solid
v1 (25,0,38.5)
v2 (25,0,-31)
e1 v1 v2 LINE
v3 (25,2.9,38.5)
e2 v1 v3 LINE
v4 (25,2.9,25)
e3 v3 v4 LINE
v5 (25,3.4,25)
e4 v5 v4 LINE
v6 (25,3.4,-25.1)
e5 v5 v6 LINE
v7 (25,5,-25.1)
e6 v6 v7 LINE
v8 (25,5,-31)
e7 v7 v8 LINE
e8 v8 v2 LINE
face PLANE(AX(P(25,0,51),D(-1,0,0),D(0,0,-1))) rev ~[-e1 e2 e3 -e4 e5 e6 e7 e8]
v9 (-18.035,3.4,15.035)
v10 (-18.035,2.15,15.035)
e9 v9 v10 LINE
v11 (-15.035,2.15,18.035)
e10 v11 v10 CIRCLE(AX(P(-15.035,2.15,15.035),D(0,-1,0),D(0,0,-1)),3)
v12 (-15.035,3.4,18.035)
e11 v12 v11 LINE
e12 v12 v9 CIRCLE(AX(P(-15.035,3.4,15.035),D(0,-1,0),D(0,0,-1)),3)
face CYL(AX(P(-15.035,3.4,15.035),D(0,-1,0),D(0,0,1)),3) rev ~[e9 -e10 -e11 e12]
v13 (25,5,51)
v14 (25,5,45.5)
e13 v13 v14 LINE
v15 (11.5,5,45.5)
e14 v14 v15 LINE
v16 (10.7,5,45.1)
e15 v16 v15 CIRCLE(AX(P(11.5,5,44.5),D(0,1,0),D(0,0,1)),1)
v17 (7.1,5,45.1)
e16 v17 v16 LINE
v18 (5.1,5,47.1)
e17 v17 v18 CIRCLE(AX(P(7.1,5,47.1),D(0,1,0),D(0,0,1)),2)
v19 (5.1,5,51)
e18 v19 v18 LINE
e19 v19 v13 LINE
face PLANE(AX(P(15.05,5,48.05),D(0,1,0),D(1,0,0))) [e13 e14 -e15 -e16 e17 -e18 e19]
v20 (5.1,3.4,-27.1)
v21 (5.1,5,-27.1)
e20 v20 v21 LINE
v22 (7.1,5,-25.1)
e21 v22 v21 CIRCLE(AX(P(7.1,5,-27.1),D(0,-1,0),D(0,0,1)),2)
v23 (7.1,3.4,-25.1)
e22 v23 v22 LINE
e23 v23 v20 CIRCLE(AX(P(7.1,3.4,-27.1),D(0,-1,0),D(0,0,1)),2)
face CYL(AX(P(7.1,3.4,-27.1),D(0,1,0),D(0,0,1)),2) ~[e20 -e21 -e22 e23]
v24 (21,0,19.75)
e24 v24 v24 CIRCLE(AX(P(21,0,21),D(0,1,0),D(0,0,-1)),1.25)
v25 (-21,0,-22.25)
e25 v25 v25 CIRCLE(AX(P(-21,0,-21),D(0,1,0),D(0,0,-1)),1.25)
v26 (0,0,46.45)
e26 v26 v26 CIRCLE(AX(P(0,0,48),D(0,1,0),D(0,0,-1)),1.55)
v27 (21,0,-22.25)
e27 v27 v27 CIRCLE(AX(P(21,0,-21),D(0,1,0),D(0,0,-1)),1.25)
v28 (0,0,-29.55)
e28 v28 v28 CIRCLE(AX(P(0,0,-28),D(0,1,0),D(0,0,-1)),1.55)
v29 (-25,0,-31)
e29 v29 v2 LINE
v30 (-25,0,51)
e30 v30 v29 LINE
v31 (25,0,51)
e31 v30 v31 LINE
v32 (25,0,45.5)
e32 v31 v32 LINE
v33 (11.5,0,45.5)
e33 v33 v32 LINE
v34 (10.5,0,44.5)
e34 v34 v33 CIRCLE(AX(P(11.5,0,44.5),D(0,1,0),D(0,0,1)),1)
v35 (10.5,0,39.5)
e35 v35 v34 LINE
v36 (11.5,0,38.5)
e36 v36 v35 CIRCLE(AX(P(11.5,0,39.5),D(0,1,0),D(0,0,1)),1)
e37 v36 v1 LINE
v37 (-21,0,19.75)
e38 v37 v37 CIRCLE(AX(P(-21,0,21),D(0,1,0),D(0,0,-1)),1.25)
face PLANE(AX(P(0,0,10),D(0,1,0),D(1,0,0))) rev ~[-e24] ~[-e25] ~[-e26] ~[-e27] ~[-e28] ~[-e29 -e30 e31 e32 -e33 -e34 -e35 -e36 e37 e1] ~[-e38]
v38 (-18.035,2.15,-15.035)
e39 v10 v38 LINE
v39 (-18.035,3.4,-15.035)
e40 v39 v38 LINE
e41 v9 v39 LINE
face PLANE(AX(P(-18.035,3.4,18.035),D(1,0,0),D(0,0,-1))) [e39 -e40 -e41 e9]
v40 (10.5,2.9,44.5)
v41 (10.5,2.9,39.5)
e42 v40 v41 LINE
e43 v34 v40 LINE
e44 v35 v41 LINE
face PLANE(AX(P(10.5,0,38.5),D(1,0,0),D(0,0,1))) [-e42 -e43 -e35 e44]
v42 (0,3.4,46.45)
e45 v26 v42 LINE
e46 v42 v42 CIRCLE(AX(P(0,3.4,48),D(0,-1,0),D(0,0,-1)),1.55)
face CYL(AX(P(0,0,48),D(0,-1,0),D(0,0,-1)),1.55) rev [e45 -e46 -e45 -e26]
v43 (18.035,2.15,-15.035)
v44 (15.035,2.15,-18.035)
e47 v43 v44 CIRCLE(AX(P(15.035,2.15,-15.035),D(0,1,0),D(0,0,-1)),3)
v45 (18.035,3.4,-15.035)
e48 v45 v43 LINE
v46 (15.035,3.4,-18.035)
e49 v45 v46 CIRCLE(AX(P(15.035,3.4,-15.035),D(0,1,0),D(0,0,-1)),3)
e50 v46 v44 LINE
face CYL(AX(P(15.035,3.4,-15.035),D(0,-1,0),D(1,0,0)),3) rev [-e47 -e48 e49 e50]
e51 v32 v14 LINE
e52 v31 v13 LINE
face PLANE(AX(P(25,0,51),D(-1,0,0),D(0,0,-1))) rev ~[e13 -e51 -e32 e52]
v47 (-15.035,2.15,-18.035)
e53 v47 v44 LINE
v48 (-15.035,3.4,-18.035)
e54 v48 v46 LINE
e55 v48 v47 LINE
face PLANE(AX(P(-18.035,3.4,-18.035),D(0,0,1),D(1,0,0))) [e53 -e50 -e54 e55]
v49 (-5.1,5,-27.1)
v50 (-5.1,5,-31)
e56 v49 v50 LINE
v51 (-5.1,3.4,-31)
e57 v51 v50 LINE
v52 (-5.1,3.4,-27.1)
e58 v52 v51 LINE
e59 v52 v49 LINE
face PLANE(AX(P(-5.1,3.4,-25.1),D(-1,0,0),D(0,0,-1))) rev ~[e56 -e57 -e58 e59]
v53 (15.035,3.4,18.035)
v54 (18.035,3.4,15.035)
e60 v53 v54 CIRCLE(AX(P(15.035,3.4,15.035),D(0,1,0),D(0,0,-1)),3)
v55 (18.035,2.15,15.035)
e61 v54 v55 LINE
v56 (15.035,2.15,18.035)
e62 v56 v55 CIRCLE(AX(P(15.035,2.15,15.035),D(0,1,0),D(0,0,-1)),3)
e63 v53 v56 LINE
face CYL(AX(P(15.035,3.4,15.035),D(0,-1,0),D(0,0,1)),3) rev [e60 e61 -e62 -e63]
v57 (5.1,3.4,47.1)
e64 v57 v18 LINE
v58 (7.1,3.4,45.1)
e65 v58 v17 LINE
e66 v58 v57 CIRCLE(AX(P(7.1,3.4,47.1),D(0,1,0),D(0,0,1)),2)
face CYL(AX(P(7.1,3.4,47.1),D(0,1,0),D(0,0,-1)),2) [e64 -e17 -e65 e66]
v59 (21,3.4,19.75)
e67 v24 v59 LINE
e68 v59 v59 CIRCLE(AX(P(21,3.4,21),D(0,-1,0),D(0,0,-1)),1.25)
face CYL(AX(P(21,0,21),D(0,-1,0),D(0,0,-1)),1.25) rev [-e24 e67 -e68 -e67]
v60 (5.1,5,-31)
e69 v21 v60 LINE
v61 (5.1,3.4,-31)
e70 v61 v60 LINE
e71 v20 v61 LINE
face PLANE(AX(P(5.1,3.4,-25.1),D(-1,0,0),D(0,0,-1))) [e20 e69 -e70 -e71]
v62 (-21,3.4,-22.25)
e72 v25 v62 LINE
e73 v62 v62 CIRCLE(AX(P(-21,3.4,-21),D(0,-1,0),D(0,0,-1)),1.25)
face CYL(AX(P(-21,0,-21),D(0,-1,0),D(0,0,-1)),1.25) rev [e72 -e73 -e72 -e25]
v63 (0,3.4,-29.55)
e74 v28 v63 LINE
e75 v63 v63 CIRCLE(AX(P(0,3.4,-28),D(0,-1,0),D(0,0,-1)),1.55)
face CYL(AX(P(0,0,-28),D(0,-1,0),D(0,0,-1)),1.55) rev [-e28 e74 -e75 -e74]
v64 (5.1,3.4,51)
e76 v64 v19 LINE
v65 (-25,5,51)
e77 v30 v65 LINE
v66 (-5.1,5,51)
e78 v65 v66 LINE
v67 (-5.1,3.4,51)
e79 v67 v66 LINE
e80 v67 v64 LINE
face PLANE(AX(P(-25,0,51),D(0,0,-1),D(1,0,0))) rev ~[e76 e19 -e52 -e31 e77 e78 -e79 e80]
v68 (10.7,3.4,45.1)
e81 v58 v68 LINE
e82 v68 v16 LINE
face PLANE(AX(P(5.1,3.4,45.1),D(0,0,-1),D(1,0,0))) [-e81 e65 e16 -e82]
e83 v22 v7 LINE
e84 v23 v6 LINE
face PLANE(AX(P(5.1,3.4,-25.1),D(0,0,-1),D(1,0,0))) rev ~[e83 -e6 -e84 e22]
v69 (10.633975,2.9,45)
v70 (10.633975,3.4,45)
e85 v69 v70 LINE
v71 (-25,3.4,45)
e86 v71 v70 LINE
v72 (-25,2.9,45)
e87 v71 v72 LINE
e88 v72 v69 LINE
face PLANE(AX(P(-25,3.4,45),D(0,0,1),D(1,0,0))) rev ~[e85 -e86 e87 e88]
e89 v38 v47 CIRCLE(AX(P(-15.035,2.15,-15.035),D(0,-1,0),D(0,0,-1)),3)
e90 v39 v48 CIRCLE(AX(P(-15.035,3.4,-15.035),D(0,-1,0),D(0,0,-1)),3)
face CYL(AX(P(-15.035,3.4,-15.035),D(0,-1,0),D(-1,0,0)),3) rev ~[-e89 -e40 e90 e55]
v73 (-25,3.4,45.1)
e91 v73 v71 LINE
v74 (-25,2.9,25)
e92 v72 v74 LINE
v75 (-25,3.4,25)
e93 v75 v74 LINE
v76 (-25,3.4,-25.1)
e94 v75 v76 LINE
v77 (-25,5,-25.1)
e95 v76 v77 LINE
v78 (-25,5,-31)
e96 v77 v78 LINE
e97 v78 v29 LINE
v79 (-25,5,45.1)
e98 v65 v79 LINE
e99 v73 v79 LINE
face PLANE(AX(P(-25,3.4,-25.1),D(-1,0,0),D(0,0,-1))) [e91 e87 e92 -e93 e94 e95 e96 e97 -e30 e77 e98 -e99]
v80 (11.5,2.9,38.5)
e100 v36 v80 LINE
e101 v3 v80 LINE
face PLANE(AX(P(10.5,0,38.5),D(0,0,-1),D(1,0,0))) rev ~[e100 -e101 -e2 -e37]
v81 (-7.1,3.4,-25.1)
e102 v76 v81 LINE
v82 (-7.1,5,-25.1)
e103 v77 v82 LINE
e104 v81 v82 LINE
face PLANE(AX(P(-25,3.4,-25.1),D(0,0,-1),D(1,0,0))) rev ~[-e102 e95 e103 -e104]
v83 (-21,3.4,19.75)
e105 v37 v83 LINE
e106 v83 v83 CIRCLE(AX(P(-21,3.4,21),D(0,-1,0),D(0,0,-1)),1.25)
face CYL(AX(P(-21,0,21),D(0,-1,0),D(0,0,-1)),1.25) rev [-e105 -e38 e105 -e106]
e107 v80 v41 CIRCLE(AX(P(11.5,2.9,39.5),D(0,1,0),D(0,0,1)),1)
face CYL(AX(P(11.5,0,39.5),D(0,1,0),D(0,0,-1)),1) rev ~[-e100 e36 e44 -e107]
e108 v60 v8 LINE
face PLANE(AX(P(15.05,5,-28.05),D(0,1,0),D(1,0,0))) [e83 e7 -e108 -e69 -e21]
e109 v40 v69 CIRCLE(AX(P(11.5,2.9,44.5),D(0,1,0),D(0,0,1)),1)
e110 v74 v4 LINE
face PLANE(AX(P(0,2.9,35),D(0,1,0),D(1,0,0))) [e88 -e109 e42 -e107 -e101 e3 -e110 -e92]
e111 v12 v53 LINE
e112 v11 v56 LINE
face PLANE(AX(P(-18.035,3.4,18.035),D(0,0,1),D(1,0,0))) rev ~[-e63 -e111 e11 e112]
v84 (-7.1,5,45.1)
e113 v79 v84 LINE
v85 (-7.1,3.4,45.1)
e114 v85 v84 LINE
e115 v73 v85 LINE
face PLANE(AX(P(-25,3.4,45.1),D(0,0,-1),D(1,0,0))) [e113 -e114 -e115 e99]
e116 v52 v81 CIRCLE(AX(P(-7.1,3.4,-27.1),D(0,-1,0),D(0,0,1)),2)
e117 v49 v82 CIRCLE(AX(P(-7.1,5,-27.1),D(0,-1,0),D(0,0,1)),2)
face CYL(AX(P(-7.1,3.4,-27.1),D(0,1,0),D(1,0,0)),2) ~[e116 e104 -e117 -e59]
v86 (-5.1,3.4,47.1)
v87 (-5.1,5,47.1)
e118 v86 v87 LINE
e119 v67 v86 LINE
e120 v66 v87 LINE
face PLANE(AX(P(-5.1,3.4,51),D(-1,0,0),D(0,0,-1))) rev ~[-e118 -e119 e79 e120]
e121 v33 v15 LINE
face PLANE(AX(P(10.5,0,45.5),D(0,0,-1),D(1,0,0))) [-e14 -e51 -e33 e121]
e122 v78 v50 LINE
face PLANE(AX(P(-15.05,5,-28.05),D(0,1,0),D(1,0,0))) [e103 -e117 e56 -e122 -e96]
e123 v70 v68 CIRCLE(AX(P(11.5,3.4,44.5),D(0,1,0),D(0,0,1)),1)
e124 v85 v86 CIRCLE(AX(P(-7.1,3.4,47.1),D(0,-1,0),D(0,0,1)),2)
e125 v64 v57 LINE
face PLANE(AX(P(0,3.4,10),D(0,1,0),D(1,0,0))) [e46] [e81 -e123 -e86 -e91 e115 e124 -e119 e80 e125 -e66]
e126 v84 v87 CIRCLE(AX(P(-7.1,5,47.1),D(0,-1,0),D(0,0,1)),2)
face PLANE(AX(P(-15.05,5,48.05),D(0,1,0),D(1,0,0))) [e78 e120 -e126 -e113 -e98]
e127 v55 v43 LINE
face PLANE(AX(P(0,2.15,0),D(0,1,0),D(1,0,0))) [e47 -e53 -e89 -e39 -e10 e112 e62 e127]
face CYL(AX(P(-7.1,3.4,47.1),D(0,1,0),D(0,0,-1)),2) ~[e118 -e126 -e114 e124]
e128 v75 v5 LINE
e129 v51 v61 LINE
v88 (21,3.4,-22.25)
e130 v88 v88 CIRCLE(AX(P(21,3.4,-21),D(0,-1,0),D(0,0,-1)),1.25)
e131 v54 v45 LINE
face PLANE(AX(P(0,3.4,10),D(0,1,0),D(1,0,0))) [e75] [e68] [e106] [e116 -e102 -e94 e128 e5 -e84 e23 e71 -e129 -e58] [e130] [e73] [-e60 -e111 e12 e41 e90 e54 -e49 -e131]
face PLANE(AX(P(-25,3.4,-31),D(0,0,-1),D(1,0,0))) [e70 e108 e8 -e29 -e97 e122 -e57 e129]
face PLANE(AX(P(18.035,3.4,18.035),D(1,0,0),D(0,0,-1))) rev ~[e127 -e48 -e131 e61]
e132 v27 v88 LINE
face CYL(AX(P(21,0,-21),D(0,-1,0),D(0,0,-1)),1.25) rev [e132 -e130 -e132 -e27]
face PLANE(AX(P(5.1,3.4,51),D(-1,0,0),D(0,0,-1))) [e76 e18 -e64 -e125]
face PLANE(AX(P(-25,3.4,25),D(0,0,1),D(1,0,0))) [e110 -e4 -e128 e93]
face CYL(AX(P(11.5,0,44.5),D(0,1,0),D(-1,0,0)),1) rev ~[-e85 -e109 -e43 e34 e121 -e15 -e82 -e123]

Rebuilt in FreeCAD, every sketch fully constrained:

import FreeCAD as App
import Part
import Sketcher
from FreeCAD import Vector
Q = App.Units.Quantity


def edges_at(feature, points):
    """Names of the edges that pass closest to the given points."""
    edges = feature.Shape.Edges
    near = lambda p: min(range(len(edges)), key=lambda i: edges[i].distToShape(Part.Vertex(*p))[0])
    return sorted({f"Edge{near(p) + 1}" for p in points})

doc = App.newDocument("Part")
body = doc.addObject("PartDesign::Body", "Body")

sketch1 = doc.addObject("Sketcher::SketchObject", "Sketch")
body.addObject(sketch1)
sketch1.AttachmentSupport = (doc.XZ_Plane, [""])
sketch1.MapMode = "FlatFace"
sketch1.addGeometry([
    Part.LineSegment(Vector(-25, -31, 0), Vector(-25, 51, 0)),
    Part.LineSegment(Vector(-25, 51, 0), Vector(25, 51, 0)),
    Part.LineSegment(Vector(25, 51, 0), Vector(25, -31, 0)),
    Part.LineSegment(Vector(25, -31, 0), Vector(-25, -31, 0)),
], False)
sketch1.addConstraint([
    Sketcher.Constraint("Coincident", 0, 2, 1, 1),
    Sketcher.Constraint("Coincident", 1, 2, 2, 1),
    Sketcher.Constraint("Coincident", 2, 2, 3, 1),
    Sketcher.Constraint("Coincident", 3, 2, 0, 1),
    Sketcher.Constraint("Vertical", 0),
    Sketcher.Constraint("Horizontal", 1),
    Sketcher.Constraint("Vertical", 2),
    Sketcher.Constraint("Horizontal", 3),
    Sketcher.Constraint("DistanceX", 1, 1, 1, 2, Q("50 mm")),
    Sketcher.Constraint("DistanceY", 0, 1, 0, 2, Q("82 mm")),
    Sketcher.Constraint("DistanceX", 0, 2, -1, 1, Q("25 mm")),
    Sketcher.Constraint("DistanceY", -1, 1, 0, 2, Q("51 mm")),
])
pad1 = doc.addObject("PartDesign::Pad", "Pad")
body.addObject(pad1)
pad1.Profile = sketch1
pad1.Length = 3.4
pad1.Reversed = True

sketch2 = doc.addObject("Sketcher::SketchObject", "Sketch001")
body.addObject(sketch2)
sketch2.AttachmentSupport = (doc.XZ_Plane, [""])
sketch2.MapMode = "FlatFace"
sketch2.AttachmentOffset = App.Placement(Vector(0, 0, -3.4), App.Rotation())
sketch2.addGeometry([
    Part.LineSegment(Vector(-18, -18, 0), Vector(-18, 18, 0)),
    Part.LineSegment(Vector(-18, 18, 0), Vector(18, 18, 0)),
    Part.LineSegment(Vector(18, 18, 0), Vector(18, -18, 0)),
    Part.LineSegment(Vector(18, -18, 0), Vector(-18, -18, 0)),
], False)
sketch2.addConstraint([
    Sketcher.Constraint("Coincident", 0, 2, 1, 1),
    Sketcher.Constraint("Coincident", 1, 2, 2, 1),
    Sketcher.Constraint("Coincident", 2, 2, 3, 1),
    Sketcher.Constraint("Coincident", 3, 2, 0, 1),
    Sketcher.Constraint("Vertical", 0),
    Sketcher.Constraint("Horizontal", 1),
    Sketcher.Constraint("Vertical", 2),
    Sketcher.Constraint("Horizontal", 3),
    Sketcher.Constraint("Symmetric", 0, 2, 2, 2, -1, 1),
    Sketcher.Constraint("Equal", 3, 0),
    Sketcher.Constraint("DistanceX", 1, 1, 1, 2, Q("36.07 mm")),
])
pocket1 = doc.addObject("PartDesign::Pocket", "Pocket")
body.addObject(pocket1)
pocket1.Profile = sketch2
pocket1.Length = 1.25
pocket1.Reversed = True

sketch3 = doc.addObject("Sketcher::SketchObject", "Sketch002")
body.addObject(sketch3)
sketch3.AttachmentSupport = (doc.XZ_Plane, [""])
sketch3.MapMode = "FlatFace"
sketch3.addGeometry([
    Part.Circle(Vector(-21, -21, 0), Vector(0, 0, 1), 1.2),
    Part.Circle(Vector(21, -21, 0), Vector(0, 0, 1), 1.2),
    Part.Circle(Vector(-21, 21, 0), Vector(0, 0, 1), 1.2),
    Part.Circle(Vector(21, 21, 0), Vector(0, 0, 1), 1.2),
    Part.Circle(Vector(0, -28, 0), Vector(0, 0, 1), 1.6),
    Part.Circle(Vector(0, 48, 0), Vector(0, 0, 1), 1.6),
], False)
sketch3.addConstraint([
    Sketcher.Constraint("Equal", 0, 1),
    Sketcher.Constraint("Equal", 1, 2),
    Sketcher.Constraint("Equal", 2, 3),
    Sketcher.Constraint("Equal", 4, 5),
    Sketcher.Constraint("Symmetric", 1, 3, 2, 3, -1, 1),
    Sketcher.Constraint("Symmetric", 0, 3, 3, 3, -1, 1),
    Sketcher.Constraint("Symmetric", 0, 3, 1, 3, -2),
    Sketcher.Constraint("PointOnObject", 4, 3, -2),
    Sketcher.Constraint("PointOnObject", 5, 3, -2),
    Sketcher.Constraint("Diameter", 0, Q("2.5 mm")),
    Sketcher.Constraint("Diameter", 4, Q("3.1 mm")),
    Sketcher.Constraint("DistanceX", 0, 3, -1, 1, Q("21 mm")),
    Sketcher.Constraint("DistanceY", 0, 3, -1, 1, Q("21 mm")),
    Sketcher.Constraint("DistanceY", 4, 3, -1, 1, Q("28 mm")),
    Sketcher.Constraint("DistanceY", -1, 1, 5, 3, Q("48 mm")),
])
pocket2 = doc.addObject("PartDesign::Pocket", "Pocket001")
body.addObject(pocket2)
pocket2.Profile = sketch3
pocket2.Type = "ThroughAll"

sketch4 = doc.addObject("Sketcher::SketchObject", "Sketch003")
body.addObject(sketch4)
sketch4.AttachmentSupport = (doc.XZ_Plane, [""])
sketch4.MapMode = "FlatFace"
sketch4.AttachmentOffset = App.Placement(Vector(0, 0, -3.4), App.Rotation())
sketch4.addGeometry([
    Part.LineSegment(Vector(-25, 25, 0), Vector(-25, 45, 0)),
    Part.LineSegment(Vector(-25, 45, 0), Vector(25, 45, 0)),
    Part.LineSegment(Vector(25, 45, 0), Vector(25, 25, 0)),
    Part.LineSegment(Vector(25, 25, 0), Vector(-25, 25, 0)),
], False)
sketch4.addConstraint([
    Sketcher.Constraint("Coincident", 0, 2, 1, 1),
    Sketcher.Constraint("Coincident", 1, 2, 2, 1),
    Sketcher.Constraint("Coincident", 2, 2, 3, 1),
    Sketcher.Constraint("Coincident", 3, 2, 0, 1),
    Sketcher.Constraint("Vertical", 0),
    Sketcher.Constraint("Horizontal", 1),
    Sketcher.Constraint("Vertical", 2),
    Sketcher.Constraint("Horizontal", 3),
    Sketcher.Constraint("DistanceX", 1, 1, 1, 2, Q("50 mm")),
    Sketcher.Constraint("DistanceY", 0, 1, 0, 2, Q("20 mm")),
    Sketcher.Constraint("DistanceX", 0, 2, -1, 1, Q("25 mm")),
    Sketcher.Constraint("DistanceY", -1, 1, 0, 2, Q("45 mm")),
])
pocket3 = doc.addObject("PartDesign::Pocket", "Pocket002")
body.addObject(pocket3)
pocket3.Profile = sketch4
pocket3.Length = 0.5
pocket3.Reversed = True
doc.recompute()

fillet = doc.addObject("PartDesign::Fillet", "Fillet")
body.addObject(fillet)
fillet.Base = (pocket3, edges_at(pocket3, [
    (18.035, 2.775, -18.035),
    (18.035, 2.775, 18.035),
    (-18.035, 2.775, 18.035),
    (-18.035, 2.775, -18.035),
]))
fillet.Radius = 3

sketch5 = doc.addObject("Sketcher::SketchObject", "Sketch004")
body.addObject(sketch5)
sketch5.AttachmentSupport = (doc.XZ_Plane, [""])
sketch5.MapMode = "FlatFace"
sketch5.AttachmentOffset = App.Placement(Vector(0, 0, -3.4), App.Rotation())
sketch5.addGeometry([
    Part.LineSegment(Vector(-25, -31, 0), Vector(-25, -25, 0)),
    Part.LineSegment(Vector(-25, -25, 0), Vector(-5, -25, 0)),
    Part.LineSegment(Vector(-5, -25, 0), Vector(-5, -31, 0)),
    Part.LineSegment(Vector(-5, -31, 0), Vector(-25, -31, 0)),
    Part.LineSegment(Vector(5, -31, 0), Vector(5, -25, 0)),
    Part.LineSegment(Vector(5, -25, 0), Vector(25, -25, 0)),
    Part.LineSegment(Vector(25, -25, 0), Vector(25, -31, 0)),
    Part.LineSegment(Vector(25, -31, 0), Vector(5, -31, 0)),
    Part.LineSegment(Vector(-25, 45, 0), Vector(-25, 51, 0)),
    Part.LineSegment(Vector(-25, 51, 0), Vector(-5, 51, 0)),
    Part.LineSegment(Vector(-5, 51, 0), Vector(-5, 45, 0)),
    Part.LineSegment(Vector(-5, 45, 0), Vector(-25, 45, 0)),
    Part.LineSegment(Vector(5, 45, 0), Vector(5, 51, 0)),
    Part.LineSegment(Vector(5, 51, 0), Vector(25, 51, 0)),
    Part.LineSegment(Vector(25, 51, 0), Vector(25, 45, 0)),
    Part.LineSegment(Vector(25, 45, 0), Vector(5, 45, 0)),
], False)
sketch5.addConstraint([
    Sketcher.Constraint("Coincident", 0, 2, 1, 1),
    Sketcher.Constraint("Coincident", 1, 2, 2, 1),
    Sketcher.Constraint("Coincident", 2, 2, 3, 1),
    Sketcher.Constraint("Coincident", 3, 2, 0, 1),
    Sketcher.Constraint("Coincident", 4, 2, 5, 1),
    Sketcher.Constraint("Coincident", 5, 2, 6, 1),
    Sketcher.Constraint("Coincident", 6, 2, 7, 1),
    Sketcher.Constraint("Coincident", 7, 2, 4, 1),
    Sketcher.Constraint("Coincident", 8, 2, 9, 1),
    Sketcher.Constraint("Coincident", 9, 2, 10, 1),
    Sketcher.Constraint("Coincident", 10, 2, 11, 1),
    Sketcher.Constraint("Coincident", 11, 2, 8, 1),
    Sketcher.Constraint("Coincident", 12, 2, 13, 1),
    Sketcher.Constraint("Coincident", 13, 2, 14, 1),
    Sketcher.Constraint("Coincident", 14, 2, 15, 1),
    Sketcher.Constraint("Coincident", 15, 2, 12, 1),
    Sketcher.Constraint("Vertical", 0),
    Sketcher.Constraint("Horizontal", 1),
    Sketcher.Constraint("Vertical", 2),
    Sketcher.Constraint("Horizontal", 3),
    Sketcher.Constraint("Vertical", 4),
    Sketcher.Constraint("Horizontal", 5),
    Sketcher.Constraint("Vertical", 6),
    Sketcher.Constraint("Horizontal", 7),
    Sketcher.Constraint("Vertical", 8),
    Sketcher.Constraint("Horizontal", 9),
    Sketcher.Constraint("Vertical", 10),
    Sketcher.Constraint("Horizontal", 11),
    Sketcher.Constraint("Vertical", 12),
    Sketcher.Constraint("Horizontal", 13),
    Sketcher.Constraint("Vertical", 14),
    Sketcher.Constraint("Horizontal", 15),
    Sketcher.Constraint("Symmetric", 1, 2, 4, 2, -2),
    Sketcher.Constraint("Symmetric", 3, 2, 6, 2, -2),
    Sketcher.Constraint("Symmetric", 9, 2, 12, 2, -2),
    Sketcher.Constraint("Symmetric", 11, 2, 14, 2, -2),
    Sketcher.Constraint("Vertical", 3, 2, 8, 2),
    Sketcher.Constraint("Vertical", 2, 2, 9, 2),
    Sketcher.Constraint("Equal", 6, 8),
    Sketcher.Constraint("DistanceX", 1, 1, 1, 2, Q("19.9 mm")),
    Sketcher.Constraint("DistanceY", 0, 1, 0, 2, Q("5.9 mm")),
    Sketcher.Constraint("DistanceX", 0, 2, -1, 1, Q("25 mm")),
    Sketcher.Constraint("DistanceY", 2, 2, -1, 1, Q("31 mm")),
    Sketcher.Constraint("DistanceY", -1, 1, 8, 2, Q("51 mm")),
])
pad2 = doc.addObject("PartDesign::Pad", "Pad001")
body.addObject(pad2)
pad2.Profile = sketch5
pad2.Length = 1.6
pad2.Reversed = True

sketch6 = doc.addObject("Sketcher::SketchObject", "Sketch005")
body.addObject(sketch6)
sketch6.AttachmentSupport = (doc.XZ_Plane, [""])
sketch6.MapMode = "FlatFace"
sketch6.addGeometry([
    Part.LineSegment(Vector(10, 46, 0), Vector(10, 38, 0)),
    Part.LineSegment(Vector(10, 38, 0), Vector(25, 38, 0)),
    Part.LineSegment(Vector(25, 38, 0), Vector(25, 46, 0)),
    Part.LineSegment(Vector(25, 46, 0), Vector(10, 46, 0)),
], False)
sketch6.addConstraint([
    Sketcher.Constraint("Coincident", 0, 2, 1, 1),
    Sketcher.Constraint("Coincident", 1, 2, 2, 1),
    Sketcher.Constraint("Coincident", 2, 2, 3, 1),
    Sketcher.Constraint("Coincident", 3, 2, 0, 1),
    Sketcher.Constraint("Vertical", 0),
    Sketcher.Constraint("Horizontal", 1),
    Sketcher.Constraint("Vertical", 2),
    Sketcher.Constraint("Horizontal", 3),
    Sketcher.Constraint("DistanceY", 0, 2, 0, 1, Q("7 mm")),
    Sketcher.Constraint("DistanceX", 1, 1, 1, 2, Q("14.5 mm")),
    Sketcher.Constraint("DistanceX", -1, 1, 1, 2, Q("25 mm")),
    Sketcher.Constraint("DistanceY", -1, 1, 0, 2, Q("38.5 mm")),
])
pocket4 = doc.addObject("PartDesign::Pocket", "Pocket003")
body.addObject(pocket4)
pocket4.Profile = sketch6
pocket4.Type = "ThroughAll"
doc.recompute()

fillet2 = doc.addObject("PartDesign::Fillet", "Fillet001")
body.addObject(fillet2)
fillet2.Base = (pocket4, edges_at(pocket4, [(10.5, 1.45, 38.5), (10.5, 2.5, 45.5)]))
fillet2.Radius = 1
doc.recompute()

fillet3 = doc.addObject("PartDesign::Fillet", "Fillet002")
body.addObject(fillet3)
fillet3.Base = (fillet2, edges_at(fillet2, [
    (5.1, 4.2, -25.1),
    (-5.1, 4.2, 45.1),
    (5.1, 4.2, 45.1),
    (-5.1, 4.2, -25.1),
]))
fillet3.Radius = 2

doc.recompute()
